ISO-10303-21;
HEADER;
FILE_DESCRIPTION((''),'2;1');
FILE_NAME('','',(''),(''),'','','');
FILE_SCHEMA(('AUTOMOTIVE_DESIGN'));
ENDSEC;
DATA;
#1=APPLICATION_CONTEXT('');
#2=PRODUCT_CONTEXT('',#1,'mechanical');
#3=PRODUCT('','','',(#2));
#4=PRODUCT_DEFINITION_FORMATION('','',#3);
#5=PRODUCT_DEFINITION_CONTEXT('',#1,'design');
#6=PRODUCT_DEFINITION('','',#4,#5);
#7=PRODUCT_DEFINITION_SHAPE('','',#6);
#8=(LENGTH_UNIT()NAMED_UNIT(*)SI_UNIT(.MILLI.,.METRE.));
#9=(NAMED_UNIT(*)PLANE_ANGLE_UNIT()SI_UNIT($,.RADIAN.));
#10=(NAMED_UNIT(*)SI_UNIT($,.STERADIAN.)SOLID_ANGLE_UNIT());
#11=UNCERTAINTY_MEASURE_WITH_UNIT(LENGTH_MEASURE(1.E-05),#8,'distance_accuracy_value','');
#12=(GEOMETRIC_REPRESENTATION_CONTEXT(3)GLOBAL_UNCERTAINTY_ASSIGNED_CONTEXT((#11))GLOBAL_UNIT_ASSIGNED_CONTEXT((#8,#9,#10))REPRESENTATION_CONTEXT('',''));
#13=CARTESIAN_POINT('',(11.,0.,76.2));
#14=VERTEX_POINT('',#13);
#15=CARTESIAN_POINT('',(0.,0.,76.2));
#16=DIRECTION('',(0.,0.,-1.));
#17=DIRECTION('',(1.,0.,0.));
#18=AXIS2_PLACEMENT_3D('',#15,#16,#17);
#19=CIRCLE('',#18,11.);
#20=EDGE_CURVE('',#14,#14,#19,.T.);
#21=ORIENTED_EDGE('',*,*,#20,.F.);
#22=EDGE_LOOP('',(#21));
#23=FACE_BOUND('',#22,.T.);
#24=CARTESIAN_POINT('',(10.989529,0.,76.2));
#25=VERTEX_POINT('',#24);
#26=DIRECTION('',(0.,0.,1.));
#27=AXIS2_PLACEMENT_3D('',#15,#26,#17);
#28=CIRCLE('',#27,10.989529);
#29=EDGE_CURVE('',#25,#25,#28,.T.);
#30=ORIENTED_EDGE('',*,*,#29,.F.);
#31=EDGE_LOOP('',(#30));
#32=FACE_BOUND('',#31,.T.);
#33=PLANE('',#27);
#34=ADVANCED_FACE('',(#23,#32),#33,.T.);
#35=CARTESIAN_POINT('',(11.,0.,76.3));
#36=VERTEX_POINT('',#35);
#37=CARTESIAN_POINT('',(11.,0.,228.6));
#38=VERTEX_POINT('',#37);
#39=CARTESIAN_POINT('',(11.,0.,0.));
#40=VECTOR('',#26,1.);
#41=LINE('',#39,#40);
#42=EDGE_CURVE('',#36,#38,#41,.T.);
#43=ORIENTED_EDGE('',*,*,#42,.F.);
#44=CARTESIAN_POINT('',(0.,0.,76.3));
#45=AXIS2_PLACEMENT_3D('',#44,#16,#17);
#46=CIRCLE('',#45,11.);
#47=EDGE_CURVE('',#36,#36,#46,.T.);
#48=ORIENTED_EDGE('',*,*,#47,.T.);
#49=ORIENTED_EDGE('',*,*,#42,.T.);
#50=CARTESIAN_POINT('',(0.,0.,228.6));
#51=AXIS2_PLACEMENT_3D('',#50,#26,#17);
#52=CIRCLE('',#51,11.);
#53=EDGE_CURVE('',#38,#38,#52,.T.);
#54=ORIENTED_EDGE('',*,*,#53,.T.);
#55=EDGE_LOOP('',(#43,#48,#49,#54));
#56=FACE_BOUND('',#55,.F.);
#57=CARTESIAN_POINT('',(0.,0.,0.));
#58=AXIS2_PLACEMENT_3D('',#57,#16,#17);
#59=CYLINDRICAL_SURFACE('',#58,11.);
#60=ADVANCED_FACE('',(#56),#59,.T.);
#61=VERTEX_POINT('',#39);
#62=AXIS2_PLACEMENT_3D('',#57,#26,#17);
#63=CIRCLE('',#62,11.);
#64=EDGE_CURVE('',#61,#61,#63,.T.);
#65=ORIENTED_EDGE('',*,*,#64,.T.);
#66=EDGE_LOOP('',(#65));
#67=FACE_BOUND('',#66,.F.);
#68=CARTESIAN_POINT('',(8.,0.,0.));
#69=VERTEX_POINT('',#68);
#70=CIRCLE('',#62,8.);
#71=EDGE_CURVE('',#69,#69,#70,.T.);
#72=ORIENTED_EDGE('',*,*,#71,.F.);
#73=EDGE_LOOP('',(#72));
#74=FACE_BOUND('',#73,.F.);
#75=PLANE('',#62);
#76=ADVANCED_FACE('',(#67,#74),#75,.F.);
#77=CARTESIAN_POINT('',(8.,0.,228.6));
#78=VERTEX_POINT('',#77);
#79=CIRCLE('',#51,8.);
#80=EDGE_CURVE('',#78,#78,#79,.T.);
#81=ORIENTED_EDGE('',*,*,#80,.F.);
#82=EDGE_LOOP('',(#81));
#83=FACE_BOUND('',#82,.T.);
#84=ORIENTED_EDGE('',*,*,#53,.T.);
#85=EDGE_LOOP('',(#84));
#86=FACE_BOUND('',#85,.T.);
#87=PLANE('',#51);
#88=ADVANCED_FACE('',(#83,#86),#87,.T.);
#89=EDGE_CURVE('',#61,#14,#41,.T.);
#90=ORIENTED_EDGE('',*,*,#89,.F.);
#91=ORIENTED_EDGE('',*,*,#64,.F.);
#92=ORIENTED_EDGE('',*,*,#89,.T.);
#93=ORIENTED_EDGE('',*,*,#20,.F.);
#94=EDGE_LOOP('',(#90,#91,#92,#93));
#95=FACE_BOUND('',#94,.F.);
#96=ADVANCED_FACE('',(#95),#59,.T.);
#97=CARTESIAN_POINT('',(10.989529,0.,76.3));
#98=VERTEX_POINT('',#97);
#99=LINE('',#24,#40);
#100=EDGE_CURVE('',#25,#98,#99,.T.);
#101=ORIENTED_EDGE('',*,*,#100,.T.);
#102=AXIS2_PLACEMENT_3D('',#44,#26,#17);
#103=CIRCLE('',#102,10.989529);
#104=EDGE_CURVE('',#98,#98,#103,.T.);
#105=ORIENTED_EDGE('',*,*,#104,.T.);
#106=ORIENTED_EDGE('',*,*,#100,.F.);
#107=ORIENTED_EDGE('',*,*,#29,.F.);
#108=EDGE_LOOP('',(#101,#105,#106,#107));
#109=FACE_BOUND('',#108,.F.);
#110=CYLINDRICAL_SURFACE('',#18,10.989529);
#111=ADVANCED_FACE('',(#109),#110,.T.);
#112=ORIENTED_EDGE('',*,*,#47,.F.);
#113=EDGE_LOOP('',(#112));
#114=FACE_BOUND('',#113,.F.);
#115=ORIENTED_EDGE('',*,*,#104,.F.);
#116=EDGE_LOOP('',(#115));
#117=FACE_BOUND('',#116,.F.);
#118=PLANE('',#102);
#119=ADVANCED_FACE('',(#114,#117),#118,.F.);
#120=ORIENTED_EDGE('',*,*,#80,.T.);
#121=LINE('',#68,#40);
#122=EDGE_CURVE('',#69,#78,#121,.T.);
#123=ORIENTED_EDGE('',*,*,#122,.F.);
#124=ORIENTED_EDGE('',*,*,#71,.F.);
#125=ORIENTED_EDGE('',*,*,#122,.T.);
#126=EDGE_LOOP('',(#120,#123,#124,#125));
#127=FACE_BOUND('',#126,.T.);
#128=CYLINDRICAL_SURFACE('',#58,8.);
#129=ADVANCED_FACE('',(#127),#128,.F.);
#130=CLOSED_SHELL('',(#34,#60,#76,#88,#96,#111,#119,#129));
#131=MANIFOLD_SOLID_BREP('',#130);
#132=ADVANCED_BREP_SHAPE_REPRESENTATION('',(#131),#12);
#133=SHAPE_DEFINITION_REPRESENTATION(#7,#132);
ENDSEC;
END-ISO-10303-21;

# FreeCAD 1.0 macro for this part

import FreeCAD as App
import Part
import Sketcher
from FreeCAD import Vector

doc = App.newDocument("Part")
body = doc.addObject("PartDesign::Body", "Body")

sketch1 = doc.addObject("Sketcher::SketchObject", "Sketch")
body.addObject(sketch1)
sketch1.AttachmentSupport = (doc.XY_Plane, [""])
sketch1.MapMode = "FlatFace"
sketch1.addGeometry(Part.Circle(Vector(0, 0, 0), Vector(0, 0, 1), 11), False)
sketch1.addGeometry(Part.Circle(Vector(0, 0, 0), Vector(0, 0, 1), 8), False)
sketch1.addConstraint(Sketcher.Constraint("Coincident", 0, 3, -1, 1))
sketch1.addConstraint(Sketcher.Constraint("Coincident", 1, 3, -1, 1))
sketch1.addConstraint(Sketcher.Constraint("Diameter", 0, 22.0))
sketch1.addConstraint(Sketcher.Constraint("Diameter", 1, 16.0))
pad1 = doc.addObject("PartDesign::Pad", "Pad")
body.addObject(pad1)
pad1.Profile = sketch1
pad1.Length = 228.6

sketch2 = doc.addObject("Sketcher::SketchObject", "Sketch001")
body.addObject(sketch2)
sketch2.AttachmentSupport = (doc.XY_Plane, [""])
sketch2.MapMode = "FlatFace"
sketch2.AttachmentOffset = App.Placement(Vector(0, 0, 76.2), App.Rotation())
sketch2.addGeometry(Part.Circle(Vector(0, 0, 0), Vector(0, 0, 1), 19), False)
sketch2.addGeometry(Part.Circle(Vector(0, 0, 0), Vector(0, 0, 1), 11), False)
sketch2.addConstraint(Sketcher.Constraint("Coincident", 0, 3, -1, 1))
sketch2.addConstraint(Sketcher.Constraint("Coincident", 1, 3, -1, 1))
sketch2.addConstraint(Sketcher.Constraint("Diameter", 0, 37.711746))
sketch2.addConstraint(Sketcher.Constraint("Diameter", 1, 21.979058))
pocket1 = doc.addObject("PartDesign::Pocket", "Pocket")
body.addObject(pocket1)
pocket1.Profile = sketch2
pocket1.Length = 0.1
pocket1.Reversed = True

doc.recompute()
